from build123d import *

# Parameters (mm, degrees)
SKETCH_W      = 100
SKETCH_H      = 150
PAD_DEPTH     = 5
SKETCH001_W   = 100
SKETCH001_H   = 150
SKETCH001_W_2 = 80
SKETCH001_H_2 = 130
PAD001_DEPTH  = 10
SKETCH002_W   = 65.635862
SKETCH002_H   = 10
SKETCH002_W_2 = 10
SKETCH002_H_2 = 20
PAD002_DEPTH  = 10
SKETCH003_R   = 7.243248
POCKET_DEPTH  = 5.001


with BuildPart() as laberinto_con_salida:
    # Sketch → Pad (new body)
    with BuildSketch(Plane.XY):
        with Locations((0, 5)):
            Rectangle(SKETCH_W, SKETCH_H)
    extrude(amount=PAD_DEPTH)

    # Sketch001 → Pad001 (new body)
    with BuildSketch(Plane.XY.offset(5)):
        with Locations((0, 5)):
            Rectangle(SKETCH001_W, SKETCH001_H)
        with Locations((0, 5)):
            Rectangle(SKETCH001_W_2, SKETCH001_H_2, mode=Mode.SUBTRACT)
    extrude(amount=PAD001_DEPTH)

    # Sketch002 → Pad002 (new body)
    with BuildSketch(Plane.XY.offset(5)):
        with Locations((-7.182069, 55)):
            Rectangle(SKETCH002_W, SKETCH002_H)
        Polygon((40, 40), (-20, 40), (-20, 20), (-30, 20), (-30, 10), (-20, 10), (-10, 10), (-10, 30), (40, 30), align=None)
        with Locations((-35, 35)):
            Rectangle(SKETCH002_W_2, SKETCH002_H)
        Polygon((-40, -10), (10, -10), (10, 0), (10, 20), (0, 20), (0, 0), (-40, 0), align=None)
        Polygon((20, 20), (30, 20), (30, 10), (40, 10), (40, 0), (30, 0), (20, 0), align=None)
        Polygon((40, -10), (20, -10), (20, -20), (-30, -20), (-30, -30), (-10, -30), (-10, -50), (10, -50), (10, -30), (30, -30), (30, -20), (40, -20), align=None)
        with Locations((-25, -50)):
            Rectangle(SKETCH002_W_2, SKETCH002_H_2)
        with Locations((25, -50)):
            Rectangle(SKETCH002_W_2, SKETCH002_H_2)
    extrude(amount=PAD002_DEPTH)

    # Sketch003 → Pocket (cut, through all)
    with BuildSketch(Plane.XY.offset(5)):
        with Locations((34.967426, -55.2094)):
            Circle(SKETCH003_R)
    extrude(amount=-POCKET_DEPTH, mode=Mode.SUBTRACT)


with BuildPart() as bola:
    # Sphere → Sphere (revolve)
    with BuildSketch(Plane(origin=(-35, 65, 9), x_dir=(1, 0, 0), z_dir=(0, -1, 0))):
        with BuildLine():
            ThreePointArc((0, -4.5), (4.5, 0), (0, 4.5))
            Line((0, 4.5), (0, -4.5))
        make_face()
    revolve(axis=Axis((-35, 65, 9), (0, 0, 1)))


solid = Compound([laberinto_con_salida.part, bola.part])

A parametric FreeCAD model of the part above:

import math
import FreeCAD as App
import Part
import Sketcher
from FreeCAD import Vector


def add_polygon(sketch, points):
    """Adds a closed chain of lines whose ends are joined by coincident constraints."""
    first, n = sketch.GeometryCount, len(points)
    for a, b in zip(points, points[1:] + points[:1]):
        sketch.addGeometry(Part.LineSegment(App.Vector(*a, 0), App.Vector(*b, 0)), False)
    for i in range(n):
        sketch.addConstraint(Sketcher.Constraint("Coincident", first + i, 2, first + (i + 1) % n, 1))

doc = App.newDocument("Part")
body = doc.addObject("PartDesign::Body", "Body")

# Sketch on XY plane
sketch1 = body.newObject("Sketcher::SketchObject", "Sketch")
sketch1.AttachmentSupport = (doc.getObject("XY_Plane"), [""])
sketch1.MapMode = "FlatFace"
add_polygon(sketch1, [(-50, 80), (-50, -70), (50, -70), (50, 80)])  # lines 0-3
sketch1.addConstraint(Sketcher.Constraint("Vertical", 0))
sketch1.addConstraint(Sketcher.Constraint("Horizontal", 1))
sketch1.addConstraint(Sketcher.Constraint("Vertical", 2))
sketch1.addConstraint(Sketcher.Constraint("Horizontal", 3))
sketch1.addConstraint(Sketcher.Constraint("DistanceX", 1, 1, 1, 2, 100.0))
sketch1.addConstraint(Sketcher.Constraint("DistanceY", 0, 2, 0, 1, 150.0))
sketch1.addConstraint(Sketcher.Constraint("DistanceX", 0, 2, -1, 1, 50.0))
sketch1.addConstraint(Sketcher.Constraint("DistanceY", 0, 2, -1, 1, 70.0))
pad1 = body.newObject("PartDesign::Pad", "Pad")
pad1.Profile = sketch1
pad1.Length = 5

# Sketch on XY plane
sketch2 = body.newObject("Sketcher::SketchObject", "Sketch001")
sketch2.AttachmentSupport = (doc.getObject("XY_Plane"), [""])
sketch2.MapMode = "FlatFace"
sketch2.AttachmentOffset = App.Placement(Vector(0, 0, 5), App.Rotation())
add_polygon(sketch2, [(-50, 80), (-50, -70), (50, -70), (50, 80)])  # lines 0-3
add_polygon(sketch2, [(40, -60), (-40, -60), (-40, 70), (40, 70)])  # lines 4-7
sketch2.addConstraint(Sketcher.Constraint("Vertical", 0))
sketch2.addConstraint(Sketcher.Constraint("Horizontal", 1))
sketch2.addConstraint(Sketcher.Constraint("Vertical", 2))
sketch2.addConstraint(Sketcher.Constraint("Horizontal", 3))
sketch2.addConstraint(Sketcher.Constraint("Horizontal", 4))
sketch2.addConstraint(Sketcher.Constraint("Vertical", 5))
sketch2.addConstraint(Sketcher.Constraint("Horizontal", 6))
sketch2.addConstraint(Sketcher.Constraint("Vertical", 7))
sketch2.addConstraint(Sketcher.Constraint("DistanceX", 1, 1, 1, 2, 100.0))
sketch2.addConstraint(Sketcher.Constraint("DistanceX", 4, 2, 4, 1, 80.0))
sketch2.addConstraint(Sketcher.Constraint("DistanceY", 0, 2, 0, 1, 150.0))
sketch2.addConstraint(Sketcher.Constraint("DistanceY", 5, 1, 5, 2, 130.0))
sketch2.addConstraint(Sketcher.Constraint("DistanceX", 0, 2, -1, 1, 50.0))
sketch2.addConstraint(Sketcher.Constraint("DistanceY", 0, 2, -1, 1, 70.0))
sketch2.addConstraint(Sketcher.Constraint("DistanceX", 4, 2, -1, 1, 40.0))
sketch2.addConstraint(Sketcher.Constraint("DistanceY", 4, 2, -1, 1, 60.0))
pad2 = body.newObject("PartDesign::Pad", "Pad001")
pad2.Profile = sketch2
pad2.Length = 10

# Sketch on XY plane
sketch3 = body.newObject("Sketcher::SketchObject", "Sketch002")
sketch3.AttachmentSupport = (doc.getObject("XY_Plane"), [""])
sketch3.MapMode = "FlatFace"
sketch3.AttachmentOffset = App.Placement(Vector(0, 0, 5), App.Rotation())
add_polygon(sketch3, [(-40, 60), (-40, 50), (26, 50), (26, 60)])  # lines 0-3
add_polygon(sketch3, [(40, 40), (-20, 40), (-20, 20), (-30, 20), (-30, 10), (-10, 10), (-10, 30), (40, 30)])  # lines 4-11
add_polygon(sketch3, [(-40, 40), (-40, 30), (-30, 30), (-30, 40)])  # lines 12-15
add_polygon(sketch3, [(-40, -10), (10, -10), (10, 20), (0, 20), (0, 0), (-40, 0)])  # lines 16-21
add_polygon(sketch3, [(30, 20), (20, 20), (20, 0), (40, 0), (40, 10), (30, 10)])  # lines 22-27
add_polygon(sketch3, [(40, -10), (20, -10), (20, -20), (-30, -20), (-30, -30), (-10, -30), (-10, -50), (10, -50), (10, -30), (30, -30), (30, -20), (40, -20)])  # lines 28-39
add_polygon(sketch3, [(-30, -40), (-30, -60), (-20, -60), (-20, -40)])  # lines 40-43
add_polygon(sketch3, [(20, -40), (20, -60), (30, -60), (30, -40)])  # lines 44-47
sketch3.addConstraint(Sketcher.Constraint("Vertical", 0))
sketch3.addConstraint(Sketcher.Constraint("Horizontal", 1))
sketch3.addConstraint(Sketcher.Constraint("Vertical", 2))
sketch3.addConstraint(Sketcher.Constraint("Horizontal", 3))
sketch3.addConstraint(Sketcher.Constraint("Horizontal", 4))
sketch3.addConstraint(Sketcher.Constraint("Vertical", 5))
sketch3.addConstraint(Sketcher.Constraint("Horizontal", 6))
sketch3.addConstraint(Sketcher.Constraint("Vertical", 7))
sketch3.addConstraint(Sketcher.Constraint("Horizontal", 8))
sketch3.addConstraint(Sketcher.Constraint("Vertical", 9))
sketch3.addConstraint(Sketcher.Constraint("Horizontal", 10))
sketch3.addConstraint(Sketcher.Constraint("Vertical", 11))
sketch3.addConstraint(Sketcher.Constraint("Vertical", 12))
sketch3.addConstraint(Sketcher.Constraint("Horizontal", 13))
sketch3.addConstraint(Sketcher.Constraint("Vertical", 14))
sketch3.addConstraint(Sketcher.Constraint("Horizontal", 15))
sketch3.addConstraint(Sketcher.Constraint("Horizontal", 16))
sketch3.addConstraint(Sketcher.Constraint("Vertical", 17))
sketch3.addConstraint(Sketcher.Constraint("Horizontal", 18))
sketch3.addConstraint(Sketcher.Constraint("Vertical", 19))
sketch3.addConstraint(Sketcher.Constraint("Horizontal", 20))
sketch3.addConstraint(Sketcher.Constraint("Vertical", 21))
sketch3.addConstraint(Sketcher.Constraint("Horizontal", 22))
sketch3.addConstraint(Sketcher.Constraint("Vertical", 23))
sketch3.addConstraint(Sketcher.Constraint("Horizontal", 24))
sketch3.addConstraint(Sketcher.Constraint("Vertical", 25))
sketch3.addConstraint(Sketcher.Constraint("Horizontal", 26))
sketch3.addConstraint(Sketcher.Constraint("Vertical", 27))
sketch3.addConstraint(Sketcher.Constraint("Horizontal", 28))
sketch3.addConstraint(Sketcher.Constraint("Vertical", 29))
sketch3.addConstraint(Sketcher.Constraint("Horizontal", 30))
sketch3.addConstraint(Sketcher.Constraint("Vertical", 31))
sketch3.addConstraint(Sketcher.Constraint("Horizontal", 32))
sketch3.addConstraint(Sketcher.Constraint("Vertical", 33))
sketch3.addConstraint(Sketcher.Constraint("Horizontal", 34))
sketch3.addConstraint(Sketcher.Constraint("Vertical", 35))
sketch3.addConstraint(Sketcher.Constraint("Horizontal", 36))
sketch3.addConstraint(Sketcher.Constraint("Vertical", 37))
sketch3.addConstraint(Sketcher.Constraint("Horizontal", 38))
sketch3.addConstraint(Sketcher.Constraint("Vertical", 39))
sketch3.addConstraint(Sketcher.Constraint("Vertical", 40))
sketch3.addConstraint(Sketcher.Constraint("Horizontal", 41))
sketch3.addConstraint(Sketcher.Constraint("Vertical", 42))
sketch3.addConstraint(Sketcher.Constraint("Horizontal", 43))
sketch3.addConstraint(Sketcher.Constraint("Vertical", 44))
sketch3.addConstraint(Sketcher.Constraint("Horizontal", 45))
sketch3.addConstraint(Sketcher.Constraint("Vertical", 46))
sketch3.addConstraint(Sketcher.Constraint("Horizontal", 47))
sketch3.addConstraint(Sketcher.Constraint("Coincident", 19, 2, -1, 1))
sketch3.addConstraint(Sketcher.Constraint("Symmetric", 8, 2, 16, 2, -1, 1))
sketch3.addConstraint(Sketcher.Constraint("Symmetric", 20, 2, 24, 2, -1, 1))
sketch3.addConstraint(Sketcher.Constraint("Symmetric", 5, 2, 29, 2, -1, 1))
sketch3.addConstraint(Sketcher.Constraint("Symmetric", 27, 2, 30, 2, -1, 1))
sketch3.addConstraint(Sketcher.Constraint("Symmetric", 9, 2, 35, 2, -1, 1))
sketch3.addConstraint(Sketcher.Constraint("Symmetric", 13, 2, 36, 2, -1, 1))
sketch3.addConstraint(Sketcher.Constraint("Symmetric", 6, 2, 37, 2, -1, 1))
sketch3.addConstraint(Sketcher.Constraint("Symmetric", 14, 2, 46, 2, -1, 1))
sketch3.addConstraint(Sketcher.Constraint("Symmetric", 4, 2, 47, 2, -1, 1))
sketch3.addConstraint(Sketcher.Constraint("Symmetric", 7, 2, 26, 2, -2))
sketch3.addConstraint(Sketcher.Constraint("Symmetric", 32, 2, 35, 2, -2))
sketch3.addConstraint(Sketcher.Constraint("Symmetric", 21, 2, 39, 2, -2))
sketch3.addConstraint(Sketcher.Constraint("Symmetric", 41, 2, 44, 2, -2))
sketch3.addConstraint(Sketcher.Constraint("Symmetric", 43, 2, 46, 2, -2))
sketch3.addConstraint(Sketcher.Constraint("Horizontal", 6, 2, 17, 2))
sketch3.addConstraint(Sketcher.Constraint("Vertical", 3, 2, 12, 2))
sketch3.addConstraint(Sketcher.Constraint("Vertical", 15, 2, 20, 2))
sketch3.addConstraint(Sketcher.Constraint("Vertical", 11, 2, 24, 2))
sketch3.addConstraint(Sketcher.Constraint("Vertical", 23, 2, 28, 2))
sketch3.addConstraint(Sketcher.Constraint("Equal", 6, 13))
sketch3.addConstraint(Sketcher.Constraint("Equal", 15, 18))
sketch3.addConstraint(Sketcher.Constraint("Equal", 8, 24))
sketch3.addConstraint(Sketcher.Constraint("Equal", 47, 0))
sketch3.addConstraint(Sketcher.Constraint("Equal", 36, 5))
sketch3.addConstraint(Sketcher.Constraint("Equal", 2, 7))
sketch3.addConstraint(Sketcher.Constraint("Equal", 5, 9))
sketch3.addConstraint(Sketcher.Constraint("Equal", 9, 19))
sketch3.addConstraint(Sketcher.Constraint("Equal", 23, 33))
sketch3.addConstraint(Sketcher.Constraint("Equal", 35, 40))
sketch3.addConstraint(Sketcher.Constraint("DistanceX", 4, 2, 4, 1, 60.0))
sketch3.addConstraint(Sketcher.Constraint("DistanceY", -1, 1, 0, 2, 50.0))
sketch3.addConstraint(Sketcher.Constraint("DistanceX", 1, 1, 1, 2, 65.635862))
pad3 = body.newObject("PartDesign::Pad", "Pad002")
pad3.Profile = sketch3
pad3.Length = 10

# Sketch on XY plane
sketch4 = body.newObject("Sketcher::SketchObject", "Sketch003")
sketch4.AttachmentSupport = (doc.getObject("XY_Plane"), [""])
sketch4.MapMode = "FlatFace"
sketch4.AttachmentOffset = App.Placement(Vector(0, 0, 5), App.Rotation())
sketch4.addGeometry(Part.Circle(Vector(35, -55, 0), Vector(0, 0, 1), 7), False)
sketch4.addConstraint(Sketcher.Constraint("Diameter", 0, 14.486496))
sketch4.addConstraint(Sketcher.Constraint("DistanceY", 0, 3, -1, 1, 55.2094))
sketch4.addConstraint(Sketcher.Constraint("DistanceX", -1, 1, 0, 3, 34.967426))
pocket1 = body.newObject("PartDesign::Pocket", "Pocket")
pocket1.Profile = sketch4
pocket1.Type = "ThroughAll"
body2 = doc.addObject("PartDesign::Body", "Body001")

# Sketch on XZ plane
sketch5 = body2.newObject("Sketcher::SketchObject", "Sketch004")
sketch5.AttachmentSupport = (doc.getObject("XZ_Plane001"), [""])
sketch5.MapMode = "FlatFace"
sketch5.AttachmentOffset = App.Placement(Vector(0, 0, -65), App.Rotation())
sketch5.addGeometry(Part.ArcOfCircle(Part.Circle(Vector(-35, 9, 0), Vector(0, 0, 1), 4.5), math.radians(-90), math.radians(90)), False)
sketch5.addGeometry(Part.LineSegment(Vector(-35, 13.5, 0), Vector(-35, 4.5, 0)), False)
sketch5.addGeometry(Part.LineSegment(Vector(-35, 4.5, 0), Vector(-35, 13.5, 0)), True)  # axis
sketch5.addConstraint(Sketcher.Constraint("Coincident", 0, 1, 1, 2))
sketch5.addConstraint(Sketcher.Constraint("Coincident", 1, 1, 0, 2))
sketch5.addConstraint(Sketcher.Constraint("Vertical", 1))
sketch5.addConstraint(Sketcher.Constraint("Vertical", 2))
sketch5.addConstraint(Sketcher.Constraint("Coincident", 2, 1, 0, 1))
sketch5.addConstraint(Sketcher.Constraint("Equal", 1, 2))
sketch5.addConstraint(Sketcher.Constraint("Radius", 0, 4.5))
sketch5.addConstraint(Sketcher.Constraint("DistanceX", 0, 3, -1, 1, 35.0))
sketch5.addConstraint(Sketcher.Constraint("DistanceY", -1, 1, 0, 3, 9.0))
sketch5.addConstraint(Sketcher.Constraint("DistanceX", 0, 1, -1, 1, 35.0))
revolution = body2.newObject("PartDesign::Revolution", "Revolution")
revolution.Profile = sketch5
revolution.ReferenceAxis = (sketch5, ["Axis0"])
revolution.Angle = 360

doc.recompute()
